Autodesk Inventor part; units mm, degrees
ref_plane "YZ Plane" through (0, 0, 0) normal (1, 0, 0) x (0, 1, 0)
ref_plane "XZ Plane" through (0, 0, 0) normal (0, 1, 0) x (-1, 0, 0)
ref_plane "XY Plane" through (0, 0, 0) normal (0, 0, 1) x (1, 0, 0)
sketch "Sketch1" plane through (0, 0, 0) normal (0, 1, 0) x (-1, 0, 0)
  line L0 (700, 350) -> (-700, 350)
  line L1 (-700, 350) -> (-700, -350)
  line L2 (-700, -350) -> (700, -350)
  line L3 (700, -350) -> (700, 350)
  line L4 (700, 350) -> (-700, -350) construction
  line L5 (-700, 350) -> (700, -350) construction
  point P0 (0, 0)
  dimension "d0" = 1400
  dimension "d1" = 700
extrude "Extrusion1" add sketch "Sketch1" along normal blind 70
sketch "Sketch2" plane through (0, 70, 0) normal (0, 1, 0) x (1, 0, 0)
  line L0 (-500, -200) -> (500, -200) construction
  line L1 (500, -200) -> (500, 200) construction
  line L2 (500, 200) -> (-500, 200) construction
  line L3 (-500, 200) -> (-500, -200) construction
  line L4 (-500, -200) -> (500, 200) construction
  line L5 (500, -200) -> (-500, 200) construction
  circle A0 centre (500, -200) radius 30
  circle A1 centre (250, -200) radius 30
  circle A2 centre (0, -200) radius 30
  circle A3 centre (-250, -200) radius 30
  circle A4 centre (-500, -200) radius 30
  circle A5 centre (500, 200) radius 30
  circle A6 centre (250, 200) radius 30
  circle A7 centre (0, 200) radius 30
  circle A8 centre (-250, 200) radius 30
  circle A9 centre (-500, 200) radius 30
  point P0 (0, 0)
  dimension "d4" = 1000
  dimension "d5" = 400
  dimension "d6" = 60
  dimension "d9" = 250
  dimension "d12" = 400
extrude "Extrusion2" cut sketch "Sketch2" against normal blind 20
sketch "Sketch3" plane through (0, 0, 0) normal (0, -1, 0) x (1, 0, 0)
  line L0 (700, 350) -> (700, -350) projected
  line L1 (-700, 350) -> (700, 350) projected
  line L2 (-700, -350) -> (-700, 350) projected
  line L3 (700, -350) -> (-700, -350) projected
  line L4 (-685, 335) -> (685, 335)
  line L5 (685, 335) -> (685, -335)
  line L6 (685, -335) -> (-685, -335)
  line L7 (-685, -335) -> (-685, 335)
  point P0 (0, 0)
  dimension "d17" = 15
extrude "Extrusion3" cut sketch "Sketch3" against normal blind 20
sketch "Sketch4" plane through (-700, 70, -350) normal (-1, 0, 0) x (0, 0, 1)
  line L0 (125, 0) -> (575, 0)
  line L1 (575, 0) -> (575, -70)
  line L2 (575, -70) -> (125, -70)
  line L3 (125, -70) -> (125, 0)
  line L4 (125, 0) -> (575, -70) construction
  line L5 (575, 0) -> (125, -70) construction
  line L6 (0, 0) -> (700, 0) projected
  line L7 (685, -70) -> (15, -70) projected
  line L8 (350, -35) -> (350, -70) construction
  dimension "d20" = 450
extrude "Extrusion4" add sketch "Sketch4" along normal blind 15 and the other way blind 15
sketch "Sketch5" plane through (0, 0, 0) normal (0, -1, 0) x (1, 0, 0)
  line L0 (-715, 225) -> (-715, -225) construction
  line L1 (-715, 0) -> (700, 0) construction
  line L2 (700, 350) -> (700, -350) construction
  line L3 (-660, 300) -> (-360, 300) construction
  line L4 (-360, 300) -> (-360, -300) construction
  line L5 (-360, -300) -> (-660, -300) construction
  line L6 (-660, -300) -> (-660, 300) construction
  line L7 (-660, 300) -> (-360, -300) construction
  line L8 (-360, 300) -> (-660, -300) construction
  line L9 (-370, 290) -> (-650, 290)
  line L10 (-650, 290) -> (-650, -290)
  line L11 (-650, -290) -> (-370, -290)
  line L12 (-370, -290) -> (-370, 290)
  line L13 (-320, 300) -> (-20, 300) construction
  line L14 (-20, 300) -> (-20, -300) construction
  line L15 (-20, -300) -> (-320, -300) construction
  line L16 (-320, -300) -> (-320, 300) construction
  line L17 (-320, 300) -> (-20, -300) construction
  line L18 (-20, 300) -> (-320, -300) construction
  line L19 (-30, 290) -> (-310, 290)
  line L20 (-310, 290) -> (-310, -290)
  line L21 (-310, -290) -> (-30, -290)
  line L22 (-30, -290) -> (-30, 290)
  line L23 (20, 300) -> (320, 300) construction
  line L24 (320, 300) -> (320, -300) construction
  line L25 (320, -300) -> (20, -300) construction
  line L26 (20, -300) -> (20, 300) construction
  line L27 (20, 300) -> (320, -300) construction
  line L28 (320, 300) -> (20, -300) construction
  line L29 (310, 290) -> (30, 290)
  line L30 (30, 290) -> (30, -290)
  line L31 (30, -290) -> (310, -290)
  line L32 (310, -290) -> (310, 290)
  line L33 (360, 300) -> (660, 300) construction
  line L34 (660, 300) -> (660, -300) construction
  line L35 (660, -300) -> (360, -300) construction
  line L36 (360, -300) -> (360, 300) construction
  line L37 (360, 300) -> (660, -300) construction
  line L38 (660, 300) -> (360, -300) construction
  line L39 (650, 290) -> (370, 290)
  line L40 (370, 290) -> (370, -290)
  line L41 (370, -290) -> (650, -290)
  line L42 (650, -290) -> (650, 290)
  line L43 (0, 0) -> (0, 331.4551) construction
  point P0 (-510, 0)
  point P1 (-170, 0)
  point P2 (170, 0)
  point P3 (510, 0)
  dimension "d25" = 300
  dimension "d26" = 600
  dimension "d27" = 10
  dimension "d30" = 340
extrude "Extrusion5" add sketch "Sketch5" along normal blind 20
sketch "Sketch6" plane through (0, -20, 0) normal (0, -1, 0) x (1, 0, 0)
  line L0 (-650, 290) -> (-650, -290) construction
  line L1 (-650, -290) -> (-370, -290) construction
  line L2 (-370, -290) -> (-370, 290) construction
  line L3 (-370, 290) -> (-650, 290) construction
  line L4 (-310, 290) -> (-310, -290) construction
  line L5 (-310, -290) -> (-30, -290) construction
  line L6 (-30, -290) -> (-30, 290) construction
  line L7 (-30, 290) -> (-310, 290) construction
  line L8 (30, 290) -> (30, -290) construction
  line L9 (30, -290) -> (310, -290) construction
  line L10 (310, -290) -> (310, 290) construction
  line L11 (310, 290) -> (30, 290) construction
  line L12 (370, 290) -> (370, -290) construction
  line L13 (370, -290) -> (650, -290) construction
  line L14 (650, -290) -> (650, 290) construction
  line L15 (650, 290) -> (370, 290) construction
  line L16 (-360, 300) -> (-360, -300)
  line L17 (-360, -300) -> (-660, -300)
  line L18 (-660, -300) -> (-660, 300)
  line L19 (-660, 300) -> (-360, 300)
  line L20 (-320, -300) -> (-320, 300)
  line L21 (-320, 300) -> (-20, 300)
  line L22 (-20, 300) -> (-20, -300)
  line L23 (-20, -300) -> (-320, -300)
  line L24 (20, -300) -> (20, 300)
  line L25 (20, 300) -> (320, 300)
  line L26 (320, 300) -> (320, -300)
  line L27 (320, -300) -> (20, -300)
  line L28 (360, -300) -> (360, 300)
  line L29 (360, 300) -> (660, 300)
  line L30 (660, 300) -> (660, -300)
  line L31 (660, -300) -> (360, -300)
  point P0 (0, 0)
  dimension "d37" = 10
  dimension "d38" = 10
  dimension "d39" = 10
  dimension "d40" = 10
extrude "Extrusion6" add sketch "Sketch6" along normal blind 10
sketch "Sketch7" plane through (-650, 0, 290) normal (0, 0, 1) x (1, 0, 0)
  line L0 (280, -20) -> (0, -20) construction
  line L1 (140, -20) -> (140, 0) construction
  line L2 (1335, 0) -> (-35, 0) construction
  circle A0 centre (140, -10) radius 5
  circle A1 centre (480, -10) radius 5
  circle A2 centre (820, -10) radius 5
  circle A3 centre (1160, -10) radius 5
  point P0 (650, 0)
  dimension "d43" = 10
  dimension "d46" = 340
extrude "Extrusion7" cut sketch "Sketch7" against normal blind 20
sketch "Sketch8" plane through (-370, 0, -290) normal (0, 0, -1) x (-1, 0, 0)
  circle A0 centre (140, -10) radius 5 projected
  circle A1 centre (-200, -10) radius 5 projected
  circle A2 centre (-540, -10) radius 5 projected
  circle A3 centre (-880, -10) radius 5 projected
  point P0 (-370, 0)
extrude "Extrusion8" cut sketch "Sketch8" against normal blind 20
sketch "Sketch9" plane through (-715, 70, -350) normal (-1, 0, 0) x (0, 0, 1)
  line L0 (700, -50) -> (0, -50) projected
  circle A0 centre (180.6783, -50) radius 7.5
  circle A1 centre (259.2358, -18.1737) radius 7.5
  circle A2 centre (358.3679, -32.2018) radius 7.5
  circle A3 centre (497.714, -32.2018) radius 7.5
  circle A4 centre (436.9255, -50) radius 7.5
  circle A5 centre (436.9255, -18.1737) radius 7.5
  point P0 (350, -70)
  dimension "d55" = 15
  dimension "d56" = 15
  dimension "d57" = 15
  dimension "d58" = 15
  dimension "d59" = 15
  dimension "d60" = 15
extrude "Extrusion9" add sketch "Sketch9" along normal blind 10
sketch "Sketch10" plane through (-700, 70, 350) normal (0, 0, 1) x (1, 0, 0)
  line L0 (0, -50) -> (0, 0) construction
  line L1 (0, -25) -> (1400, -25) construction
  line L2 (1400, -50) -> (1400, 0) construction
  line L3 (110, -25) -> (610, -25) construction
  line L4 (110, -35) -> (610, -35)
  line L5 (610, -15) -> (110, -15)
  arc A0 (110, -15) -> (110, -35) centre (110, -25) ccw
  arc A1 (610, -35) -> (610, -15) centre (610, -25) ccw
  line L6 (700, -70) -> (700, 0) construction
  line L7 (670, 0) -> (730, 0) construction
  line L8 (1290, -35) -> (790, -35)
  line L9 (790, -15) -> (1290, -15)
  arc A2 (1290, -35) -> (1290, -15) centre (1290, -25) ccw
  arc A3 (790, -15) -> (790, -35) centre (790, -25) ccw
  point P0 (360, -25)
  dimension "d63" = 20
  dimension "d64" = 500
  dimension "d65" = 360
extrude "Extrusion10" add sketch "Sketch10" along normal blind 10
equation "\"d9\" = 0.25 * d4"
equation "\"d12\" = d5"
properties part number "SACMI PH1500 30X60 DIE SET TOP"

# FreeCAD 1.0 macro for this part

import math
import FreeCAD as App
import Part
import Sketcher
Q = App.Units.Quantity

doc = App.newDocument("Part")
params = doc.addObject("Spreadsheet::Sheet", "Params")
for row, (alias, value) in enumerate([
    ("sketch1_width", "1400 mm"),
    ("sketch1_height", "700 mm"),
    ("pad1_length", "70 mm"),
    ("sketch2_diameter", "60 mm"),
    ("pocket1_length", "20 mm"),
    ("sketch3_width", "1400 mm"),
    ("sketch3_height", "700 mm"),
    ("pocket2_length", "20 mm"),
    ("sketch4_height", "450 mm"),
    ("sketch4_width", "70 mm"),
    ("pad2_length", "15 mm"),
    ("pad2_length2", "15 mm"),
    ("sketch5_width", "280 mm"),
    ("sketch5_height", "580 mm"),
    ("pad3_length", "20 mm"),
    ("sketch6_width", "300 mm"),
    ("sketch6_height", "600 mm"),
    ("pad4_length", "10 mm"),
    ("sketch7_diameter", "10 mm"),
    ("pocket3_length", "20 mm"),
    ("sketch8_diameter", "10 mm"),
    ("pocket4_length", "20 mm"),
    ("sketch9_diameter", "15 mm"),
    ("pad5_length", "10 mm"),
    ("sketch10_radius", "10 mm"),
    ("sketch10_width", "500 mm"),
    ("pad6_length", "10 mm"),
], start=1):
    params.set(f"A{row}", alias)
    params.set(f"B{row}", "=" + value)
    params.setAlias(f"B{row}", alias)

body = doc.addObject("PartDesign::Body", "Body")

sketch1 = body.newObject("Sketcher::SketchObject", "Sketch")
sketch1.AttachmentSupport = (doc.getObject("XZ_Plane"), [""])
sketch1.MapMode = "FlatFace"
sketch1.addGeometry([
    Part.LineSegment(App.Vector(-700, -350, 0), App.Vector(-700, 350, 0)),
    Part.LineSegment(App.Vector(-700, 350, 0), App.Vector(700, 350, 0)),
    Part.LineSegment(App.Vector(700, 350, 0), App.Vector(700, -350, 0)),
    Part.LineSegment(App.Vector(700, -350, 0), App.Vector(-700, -350, 0)),
], False)
sketch1.addConstraint([
    Sketcher.Constraint("Coincident", 0, 2, 1, 1),
    Sketcher.Constraint("Coincident", 1, 2, 2, 1),
    Sketcher.Constraint("Coincident", 2, 2, 3, 1),
    Sketcher.Constraint("Coincident", 3, 2, 0, 1),
    Sketcher.Constraint("Vertical", 0),
    Sketcher.Constraint("Horizontal", 1),
    Sketcher.Constraint("Vertical", 2),
    Sketcher.Constraint("Horizontal", 3),
    Sketcher.Constraint("Symmetric", 0, 2, 2, 2, -1, 1),
    Sketcher.Constraint("DistanceX", 1, 1, 1, 2, Q("1400 mm")),
    Sketcher.Constraint("DistanceY", 0, 1, 0, 2, Q("700 mm")),
])
sketch1.setExpression("Constraints[9]", "Params.sketch1_width")
sketch1.setExpression("Constraints[10]", "Params.sketch1_height")
pad1 = body.newObject("PartDesign::Pad", "Pad")
pad1.Profile = sketch1
pad1.setExpression("Length", "Params.pad1_length")
pad1.Reversed = True

sketch2 = body.newObject("Sketcher::SketchObject", "Sketch001")
sketch2.AttachmentSupport = (doc.getObject("XZ_Plane"), [""])
sketch2.MapMode = "FlatFace"
sketch2.AttachmentOffset = App.Placement(App.Vector(0, 0, -70), App.Rotation())
sketch2.addGeometry([
    Part.Circle(App.Vector(500, 200, 0), App.Vector(0, 0, 1), 30),
    Part.Circle(App.Vector(250, 200, 0), App.Vector(0, 0, 1), 30),
    Part.Circle(App.Vector(0, 200, 0), App.Vector(0, 0, 1), 30),
    Part.Circle(App.Vector(-250, 200, 0), App.Vector(0, 0, 1), 30),
    Part.Circle(App.Vector(-500, 200, 0), App.Vector(0, 0, 1), 30),
    Part.Circle(App.Vector(500, -200, 0), App.Vector(0, 0, 1), 30),
    Part.Circle(App.Vector(250, -200, 0), App.Vector(0, 0, 1), 30),
    Part.Circle(App.Vector(0, -200, 0), App.Vector(0, 0, 1), 30),
    Part.Circle(App.Vector(-250, -200, 0), App.Vector(0, 0, 1), 30),
    Part.Circle(App.Vector(-500, -200, 0), App.Vector(0, 0, 1), 30),
], False)
sketch2.addConstraint([
    Sketcher.Constraint("Equal", 0, 1),
    Sketcher.Constraint("Equal", 1, 2),
    Sketcher.Constraint("Equal", 2, 3),
    Sketcher.Constraint("Equal", 3, 4),
    Sketcher.Constraint("Equal", 4, 5),
    Sketcher.Constraint("Equal", 5, 6),
    Sketcher.Constraint("Equal", 6, 7),
    Sketcher.Constraint("Equal", 7, 8),
    Sketcher.Constraint("Equal", 8, 9),
    Sketcher.Constraint("Symmetric", 4, 3, 5, 3, -1, 1),
    Sketcher.Constraint("Symmetric", 3, 3, 6, 3, -1, 1),
    Sketcher.Constraint("Symmetric", 2, 3, 7, 3, -1, 1),
    Sketcher.Constraint("Symmetric", 1, 3, 8, 3, -1, 1),
    Sketcher.Constraint("Symmetric", 0, 3, 9, 3, -1, 1),
    Sketcher.Constraint("Symmetric", 1, 3, 3, 3, -2),
    Sketcher.Constraint("Symmetric", 0, 3, 4, 3, -2),
    Sketcher.Constraint("PointOnObject", 2, 3, -2),
    Sketcher.Constraint("Horizontal", 0, 3, 1, 3),
    Sketcher.Constraint("Horizontal", 1, 3, 2, 3),
    Sketcher.Constraint("Diameter", 0, Q("60 mm")),
    Sketcher.Constraint("DistanceX", -1, 1, 1, 3, Q("250 mm")),
    Sketcher.Constraint("DistanceX", 1, 3, 0, 3, Q("250 mm")),
    Sketcher.Constraint("DistanceY", 5, 3, 0, 3, Q("400 mm")),
])
sketch2.setExpression("Constraints[19]", "Params.sketch2_diameter")
pocket1 = body.newObject("PartDesign::Pocket", "Pocket")
pocket1.Profile = sketch2
pocket1.setExpression("Length", "Params.pocket1_length")
pocket1.Reversed = True

sketch3 = body.newObject("Sketcher::SketchObject", "Sketch002")
sketch3.AttachmentSupport = (doc.getObject("XZ_Plane"), [""])
sketch3.MapMode = "FlatFace"
sketch3.addGeometry([
    Part.LineSegment(App.Vector(700, -350, 0), App.Vector(700, 350, 0)),
    Part.LineSegment(App.Vector(700, 350, 0), App.Vector(-700, 350, 0)),
    Part.LineSegment(App.Vector(-700, 350, 0), App.Vector(-700, -350, 0)),
    Part.LineSegment(App.Vector(-700, -350, 0), App.Vector(700, -350, 0)),
    Part.LineSegment(App.Vector(-685, -335, 0), App.Vector(-685, 335, 0)),
    Part.LineSegment(App.Vector(-685, 335, 0), App.Vector(685, 335, 0)),
    Part.LineSegment(App.Vector(685, 335, 0), App.Vector(685, -335, 0)),
    Part.LineSegment(App.Vector(685, -335, 0), App.Vector(-685, -335, 0)),
], False)
sketch3.addConstraint([
    Sketcher.Constraint("Coincident", 0, 2, 1, 1),
    Sketcher.Constraint("Coincident", 1, 2, 2, 1),
    Sketcher.Constraint("Coincident", 2, 2, 3, 1),
    Sketcher.Constraint("Coincident", 3, 2, 0, 1),
    Sketcher.Constraint("Coincident", 4, 2, 5, 1),
    Sketcher.Constraint("Coincident", 5, 2, 6, 1),
    Sketcher.Constraint("Coincident", 6, 2, 7, 1),
    Sketcher.Constraint("Coincident", 7, 2, 4, 1),
    Sketcher.Constraint("Vertical", 0),
    Sketcher.Constraint("Horizontal", 1),
    Sketcher.Constraint("Vertical", 2),
    Sketcher.Constraint("Horizontal", 3),
    Sketcher.Constraint("Vertical", 4),
    Sketcher.Constraint("Horizontal", 5),
    Sketcher.Constraint("Vertical", 6),
    Sketcher.Constraint("Horizontal", 7),
    Sketcher.Constraint("Symmetric", 0, 2, 2, 2, -1, 1),
    Sketcher.Constraint("Symmetric", 4, 2, 6, 2, -1, 1),
    Sketcher.Constraint("DistanceX", 1, 2, 4, 2, Q("15 mm")),
    Sketcher.Constraint("DistanceY", 4, 2, 1, 2, Q("15 mm")),
    Sketcher.Constraint("DistanceX", 1, 2, 1, 1, Q("1400 mm")),
    Sketcher.Constraint("DistanceY", 0, 1, 0, 2, Q("700 mm")),
])
sketch3.setExpression("Constraints[20]", "Params.sketch3_width")
sketch3.setExpression("Constraints[21]", "Params.sketch3_height")
pocket2 = body.newObject("PartDesign::Pocket", "Pocket001")
pocket2.Profile = sketch3
pocket2.setExpression("Length", "Params.pocket2_length")

sketch4 = body.newObject("Sketcher::SketchObject", "Sketch003")
sketch4.AttachmentSupport = (doc.getObject("YZ_Plane"), [""])
sketch4.MapMode = "FlatFace"
sketch4.AttachmentOffset = App.Placement(App.Vector(0, 0, -700), App.Rotation())
sketch4.addGeometry([
    Part.LineSegment(App.Vector(70, 225, 0), App.Vector(70, -225, 0)),
    Part.LineSegment(App.Vector(70, -225, 0), App.Vector(0, -225, 0)),
    Part.LineSegment(App.Vector(0, -225, 0), App.Vector(0, 225, 0)),
    Part.LineSegment(App.Vector(0, 225, 0), App.Vector(70, 225, 0)),
], False)
sketch4.addConstraint([
    Sketcher.Constraint("Coincident", 0, 2, 1, 1),
    Sketcher.Constraint("Coincident", 1, 2, 2, 1),
    Sketcher.Constraint("Coincident", 2, 2, 3, 1),
    Sketcher.Constraint("Coincident", 3, 2, 0, 1),
    Sketcher.Constraint("Vertical", 0),
    Sketcher.Constraint("Horizontal", 1),
    Sketcher.Constraint("Vertical", 2),
    Sketcher.Constraint("Horizontal", 3),
    Sketcher.Constraint("Symmetric", 1, 2, 2, 2, -1, 1),
    Sketcher.Constraint("DistanceY", 0, 2, 0, 1, Q("450 mm")),
    Sketcher.Constraint("DistanceX", 1, 2, 1, 1, Q("70 mm")),
])
sketch4.setExpression("Constraints[9]", "Params.sketch4_height")
sketch4.setExpression("Constraints[10]", "Params.sketch4_width")
pad2 = body.newObject("PartDesign::Pad", "Pad001")
pad2.Profile = sketch4
pad2.Type = "TwoLengths"
pad2.setExpression("Length", "Params.pad2_length")
pad2.setExpression("Length2", "Params.pad2_length2")
pad2.Reversed = True

sketch5 = body.newObject("Sketcher::SketchObject", "Sketch004")
sketch5.AttachmentSupport = (doc.getObject("XZ_Plane"), [""])
sketch5.MapMode = "FlatFace"
sketch5.addGeometry([
    Part.LineSegment(App.Vector(-370, -290, 0), App.Vector(-370, 290, 0)),
    Part.LineSegment(App.Vector(-370, 290, 0), App.Vector(-650, 290, 0)),
    Part.LineSegment(App.Vector(-650, 290, 0), App.Vector(-650, -290, 0)),
    Part.LineSegment(App.Vector(-650, -290, 0), App.Vector(-370, -290, 0)),
    Part.LineSegment(App.Vector(-30, -290, 0), App.Vector(-30, 290, 0)),
    Part.LineSegment(App.Vector(-30, 290, 0), App.Vector(-310, 290, 0)),
    Part.LineSegment(App.Vector(-310, 290, 0), App.Vector(-310, -290, 0)),
    Part.LineSegment(App.Vector(-310, -290, 0), App.Vector(-30, -290, 0)),
    Part.LineSegment(App.Vector(310, -290, 0), App.Vector(310, 290, 0)),
    Part.LineSegment(App.Vector(310, 290, 0), App.Vector(30, 290, 0)),
    Part.LineSegment(App.Vector(30, 290, 0), App.Vector(30, -290, 0)),
    Part.LineSegment(App.Vector(30, -290, 0), App.Vector(310, -290, 0)),
    Part.LineSegment(App.Vector(650, -290, 0), App.Vector(650, 290, 0)),
    Part.LineSegment(App.Vector(650, 290, 0), App.Vector(370, 290, 0)),
    Part.LineSegment(App.Vector(370, 290, 0), App.Vector(370, -290, 0)),
    Part.LineSegment(App.Vector(370, -290, 0), App.Vector(650, -290, 0)),
], False)
sketch5.addConstraint([
    Sketcher.Constraint("Coincident", 0, 2, 1, 1),
    Sketcher.Constraint("Coincident", 1, 2, 2, 1),
    Sketcher.Constraint("Coincident", 2, 2, 3, 1),
    Sketcher.Constraint("Coincident", 3, 2, 0, 1),
    Sketcher.Constraint("Coincident", 4, 2, 5, 1),
    Sketcher.Constraint("Coincident", 5, 2, 6, 1),
    Sketcher.Constraint("Coincident", 6, 2, 7, 1),
    Sketcher.Constraint("Coincident", 7, 2, 4, 1),
    Sketcher.Constraint("Coincident", 8, 2, 9, 1),
    Sketcher.Constraint("Coincident", 9, 2, 10, 1),
    Sketcher.Constraint("Coincident", 10, 2, 11, 1),
    Sketcher.Constraint("Coincident", 11, 2, 8, 1),
    Sketcher.Constraint("Coincident", 12, 2, 13, 1),
    Sketcher.Constraint("Coincident", 13, 2, 14, 1),
    Sketcher.Constraint("Coincident", 14, 2, 15, 1),
    Sketcher.Constraint("Coincident", 15, 2, 12, 1),
    Sketcher.Constraint("Vertical", 0),
    Sketcher.Constraint("Horizontal", 1),
    Sketcher.Constraint("Vertical", 2),
    Sketcher.Constraint("Horizontal", 3),
    Sketcher.Constraint("Vertical", 4),
    Sketcher.Constraint("Horizontal", 5),
    Sketcher.Constraint("Vertical", 6),
    Sketcher.Constraint("Horizontal", 7),
    Sketcher.Constraint("Vertical", 8),
    Sketcher.Constraint("Horizontal", 9),
    Sketcher.Constraint("Vertical", 10),
    Sketcher.Constraint("Horizontal", 11),
    Sketcher.Constraint("Vertical", 12),
    Sketcher.Constraint("Horizontal", 13),
    Sketcher.Constraint("Vertical", 14),
    Sketcher.Constraint("Horizontal", 15),
    Sketcher.Constraint("Symmetric", 6, 2, 8, 2, -1, 1),
    Sketcher.Constraint("Symmetric", 4, 2, 10, 2, -1, 1),
    Sketcher.Constraint("Symmetric", 2, 2, 12, 2, -1, 1),
    Sketcher.Constraint("Symmetric", 0, 2, 14, 2, -1, 1),
    Sketcher.Constraint("Horizontal", 1, 2, 4, 2),
    Sketcher.Constraint("Horizontal", 3, 2, 6, 2),
    Sketcher.Constraint("Horizontal", 5, 2, 8, 2),
    Sketcher.Constraint("Equal", 3, 5),
    Sketcher.Constraint("DistanceX", 0, 2, 4, 2, Q("340 mm")),
    Sketcher.Constraint("DistanceX", 4, 2, 8, 2, Q("340 mm")),
    Sketcher.Constraint("DistanceX", 1, 2, 1, 1, Q("280 mm")),
    Sketcher.Constraint("DistanceY", 0, 1, 0, 2, Q("580 mm")),
])
sketch5.setExpression("Constraints[42]", "Params.sketch5_width")
sketch5.setExpression("Constraints[43]", "Params.sketch5_height")
pad3 = body.newObject("PartDesign::Pad", "Pad002")
pad3.Profile = sketch5
pad3.setExpression("Length", "Params.pad3_length")

sketch6 = body.newObject("Sketcher::SketchObject", "Sketch005")
sketch6.AttachmentSupport = (doc.getObject("XZ_Plane"), [""])
sketch6.MapMode = "FlatFace"
sketch6.AttachmentOffset = App.Placement(App.Vector(0, 0, 20), App.Rotation())
sketch6.addGeometry([
    Part.LineSegment(App.Vector(-360, -300, 0), App.Vector(-360, 300, 0)),
    Part.LineSegment(App.Vector(-360, 300, 0), App.Vector(-660, 300, 0)),
    Part.LineSegment(App.Vector(-660, 300, 0), App.Vector(-660, -300, 0)),
    Part.LineSegment(App.Vector(-660, -300, 0), App.Vector(-360, -300, 0)),
    Part.LineSegment(App.Vector(-320, 300, 0), App.Vector(-320, -300, 0)),
    Part.LineSegment(App.Vector(-320, -300, 0), App.Vector(-20, -300, 0)),
    Part.LineSegment(App.Vector(-20, -300, 0), App.Vector(-20, 300, 0)),
    Part.LineSegment(App.Vector(-20, 300, 0), App.Vector(-320, 300, 0)),
    Part.LineSegment(App.Vector(20, 300, 0), App.Vector(20, -300, 0)),
    Part.LineSegment(App.Vector(20, -300, 0), App.Vector(320, -300, 0)),
    Part.LineSegment(App.Vector(320, -300, 0), App.Vector(320, 300, 0)),
    Part.LineSegment(App.Vector(320, 300, 0), App.Vector(20, 300, 0)),
    Part.LineSegment(App.Vector(360, 300, 0), App.Vector(360, -300, 0)),
    Part.LineSegment(App.Vector(360, -300, 0), App.Vector(660, -300, 0)),
    Part.LineSegment(App.Vector(660, -300, 0), App.Vector(660, 300, 0)),
    Part.LineSegment(App.Vector(660, 300, 0), App.Vector(360, 300, 0)),
], False)
sketch6.addConstraint([
    Sketcher.Constraint("Coincident", 0, 2, 1, 1),
    Sketcher.Constraint("Coincident", 1, 2, 2, 1),
    Sketcher.Constraint("Coincident", 2, 2, 3, 1),
    Sketcher.Constraint("Coincident", 3, 2, 0, 1),
    Sketcher.Constraint("Coincident", 4, 2, 5, 1),
    Sketcher.Constraint("Coincident", 5, 2, 6, 1),
    Sketcher.Constraint("Coincident", 6, 2, 7, 1),
    Sketcher.Constraint("Coincident", 7, 2, 4, 1),
    Sketcher.Constraint("Coincident", 8, 2, 9, 1),
    Sketcher.Constraint("Coincident", 9, 2, 10, 1),
    Sketcher.Constraint("Coincident", 10, 2, 11, 1),
    Sketcher.Constraint("Coincident", 11, 2, 8, 1),
    Sketcher.Constraint("Coincident", 12, 2, 13, 1),
    Sketcher.Constraint("Coincident", 13, 2, 14, 1),
    Sketcher.Constraint("Coincident", 14, 2, 15, 1),
    Sketcher.Constraint("Coincident", 15, 2, 12, 1),
    Sketcher.Constraint("Vertical", 0),
    Sketcher.Constraint("Horizontal", 1),
    Sketcher.Constraint("Vertical", 2),
    Sketcher.Constraint("Horizontal", 3),
    Sketcher.Constraint("Vertical", 4),
    Sketcher.Constraint("Horizontal", 5),
    Sketcher.Constraint("Vertical", 6),
    Sketcher.Constraint("Horizontal", 7),
    Sketcher.Constraint("Vertical", 8),
    Sketcher.Constraint("Horizontal", 9),
    Sketcher.Constraint("Vertical", 10),
    Sketcher.Constraint("Horizontal", 11),
    Sketcher.Constraint("Vertical", 12),
    Sketcher.Constraint("Horizontal", 13),
    Sketcher.Constraint("Vertical", 14),
    Sketcher.Constraint("Horizontal", 15),
    Sketcher.Constraint("Symmetric", 6, 2, 8, 2, -1, 1),
    Sketcher.Constraint("Symmetric", 4, 2, 10, 2, -1, 1),
    Sketcher.Constraint("Symmetric", 0, 2, 12, 2, -1, 1),
    Sketcher.Constraint("Symmetric", 2, 2, 14, 2, -1, 1),
    Sketcher.Constraint("Horizontal", 3, 2, 4, 2),
    Sketcher.Constraint("Horizontal", 1, 2, 6, 2),
    Sketcher.Constraint("Horizontal", 5, 2, 8, 2),
    Sketcher.Constraint("Equal", 3, 5),
    Sketcher.Constraint("DistanceX", 1, 2, 1, 1, Q("300 mm")),
    Sketcher.Constraint("DistanceY", 0, 1, 0, 2, Q("600 mm")),
    Sketcher.Constraint("DistanceX", 0, 2, -1, 1, Q("360 mm")),
    Sketcher.Constraint("DistanceX", 4, 2, -1, 1, Q("320 mm")),
])
sketch6.setExpression("Constraints[40]", "Params.sketch6_width")
sketch6.setExpression("Constraints[41]", "Params.sketch6_height")
pad4 = body.newObject("PartDesign::Pad", "Pad003")
pad4.Profile = sketch6
pad4.setExpression("Length", "Params.pad4_length")

sketch7 = body.newObject("Sketcher::SketchObject", "Sketch006")
sketch7.AttachmentSupport = (doc.getObject("XY_Plane"), [""])
sketch7.MapMode = "FlatFace"
sketch7.AttachmentOffset = App.Placement(App.Vector(0, 0, 290), App.Rotation())
sketch7.addGeometry([
    Part.Circle(App.Vector(-510, -10, 0), App.Vector(0, 0, 1), 5),
    Part.Circle(App.Vector(-170, -10, 0), App.Vector(0, 0, 1), 5),
    Part.Circle(App.Vector(170, -10, 0), App.Vector(0, 0, 1), 5),
    Part.Circle(App.Vector(510, -10, 0), App.Vector(0, 0, 1), 5),
], False)
sketch7.addConstraint([
    Sketcher.Constraint("Equal", 0, 1),
    Sketcher.Constraint("Equal", 1, 2),
    Sketcher.Constraint("Equal", 2, 3),
    Sketcher.Constraint("Symmetric", 1, 3, 2, 3, -2),
    Sketcher.Constraint("Symmetric", 0, 3, 3, 3, -2),
    Sketcher.Constraint("Horizontal", 0, 3, 1, 3),
    Sketcher.Constraint("Diameter", 0, Q("10 mm")),
    Sketcher.Constraint("DistanceY", 0, 3, -1, 1, Q("10 mm")),
    Sketcher.Constraint("DistanceX", 0, 3, 1, 3, Q("340 mm")),
    Sketcher.Constraint("DistanceX", 1, 3, 2, 3, Q("340 mm")),
])
sketch7.setExpression("Constraints[6]", "Params.sketch7_diameter")
pocket3 = body.newObject("PartDesign::Pocket", "Pocket002")
pocket3.Profile = sketch7
pocket3.setExpression("Length", "Params.pocket3_length")

sketch8 = body.newObject("Sketcher::SketchObject", "Sketch007")
sketch8.AttachmentSupport = (doc.getObject("XY_Plane"), [""])
sketch8.MapMode = "FlatFace"
sketch8.AttachmentOffset = App.Placement(App.Vector(0, 0, -290), App.Rotation())
sketch8.addGeometry([
    Part.Circle(App.Vector(-510, -10, 0), App.Vector(0, 0, 1), 5),
    Part.Circle(App.Vector(-170, -10, 0), App.Vector(0, 0, 1), 5),
    Part.Circle(App.Vector(170, -10, 0), App.Vector(0, 0, 1), 5),
    Part.Circle(App.Vector(510, -10, 0), App.Vector(0, 0, 1), 5),
], False)
sketch8.addConstraint([
    Sketcher.Constraint("Equal", 0, 1),
    Sketcher.Constraint("Equal", 1, 2),
    Sketcher.Constraint("Equal", 2, 3),
    Sketcher.Constraint("Symmetric", 1, 3, 2, 3, -2),
    Sketcher.Constraint("Symmetric", 0, 3, 3, 3, -2),
    Sketcher.Constraint("Horizontal", 0, 3, 1, 3),
    Sketcher.Constraint("Diameter", 0, Q("10 mm")),
    Sketcher.Constraint("DistanceX", 0, 3, -1, 1, Q("510 mm")),
    Sketcher.Constraint("DistanceY", 0, 3, -1, 1, Q("10 mm")),
    Sketcher.Constraint("DistanceX", 1, 3, -1, 1, Q("170 mm")),
])
sketch8.setExpression("Constraints[6]", "Params.sketch8_diameter")
pocket4 = body.newObject("PartDesign::Pocket", "Pocket003")
pocket4.Profile = sketch8
pocket4.setExpression("Length", "Params.pocket4_length")
pocket4.Reversed = True

sketch9 = body.newObject("Sketcher::SketchObject", "Sketch008")
sketch9.AttachmentSupport = (doc.getObject("YZ_Plane"), [""])
sketch9.MapMode = "FlatFace"
sketch9.AttachmentOffset = App.Placement(App.Vector(0, 0, -715), App.Rotation())
sketch9.addGeometry([
    Part.Circle(App.Vector(20, 86.9255, 0), App.Vector(0, 0, 1), 7.5),
    Part.Circle(App.Vector(20, -169.3217, 0), App.Vector(0, 0, 1), 7.5),
    Part.Circle(App.Vector(51.8263, -90.7642, 0), App.Vector(0, 0, 1), 7.5),
    Part.Circle(App.Vector(37.7982, 8.3679, 0), App.Vector(0, 0, 1), 7.5),
    Part.Circle(App.Vector(37.7982, 147.714, 0), App.Vector(0, 0, 1), 7.5),
    Part.Circle(App.Vector(51.8263, 86.9255, 0), App.Vector(0, 0, 1), 7.5),
], False)
sketch9.addConstraint([
    Sketcher.Constraint("Equal", 0, 1),
    Sketcher.Constraint("Equal", 1, 2),
    Sketcher.Constraint("Equal", 2, 3),
    Sketcher.Constraint("Equal", 3, 4),
    Sketcher.Constraint("Equal", 4, 5),
    Sketcher.Constraint("Horizontal", 0, 3, 5, 3),
    Sketcher.Constraint("Vertical", 0, 3, 1, 3),
    Sketcher.Constraint("Vertical", 3, 3, 4, 3),
    Sketcher.Constraint("Vertical", 2, 3, 5, 3),
    Sketcher.Constraint("Diameter", 0, Q("15 mm")),
    Sketcher.Constraint("DistanceX", -1, 1, 0, 3, Q("20 mm")),
    Sketcher.Constraint("DistanceY", -1, 1, 3, 3, Q("8.368 mm")),
    Sketcher.Constraint("DistanceY", -1, 1, 4, 3, Q("147.714 mm")),
    Sketcher.Constraint("DistanceX", 3, 3, 2, 3, Q("14.028 mm")),
    Sketcher.Constraint("DistanceY", 2, 3, 3, 3, Q("99.132 mm")),
    Sketcher.Constraint("DistanceY", -1, 1, 0, 3, Q("86.9255 mm")),
    Sketcher.Constraint("DistanceY", 1, 3, -1, 1, Q("169.3217 mm")),
    Sketcher.Constraint("DistanceX", -1, 1, 2, 3, Q("51.8263 mm")),
])
sketch9.setExpression("Constraints[9]", "Params.sketch9_diameter")
pad5 = body.newObject("PartDesign::Pad", "Pad004")
pad5.Profile = sketch9
pad5.setExpression("Length", "Params.pad5_length")
pad5.Reversed = True

sketch10 = body.newObject("Sketcher::SketchObject", "Sketch009")
sketch10.AttachmentSupport = (doc.getObject("XY_Plane"), [""])
sketch10.MapMode = "FlatFace"
sketch10.AttachmentOffset = App.Placement(App.Vector(0, 0, 350), App.Rotation())
sketch10.addGeometry([
    Part.ArcOfCircle(Part.Circle(App.Vector(-590, 45, 0), App.Vector(0, 0, 1), 10), math.radians(90), math.radians(270)),
    Part.LineSegment(App.Vector(-590, 35, 0), App.Vector(-90, 35, 0)),
    Part.ArcOfCircle(Part.Circle(App.Vector(-90, 45, 0), App.Vector(0, 0, 1), 10), math.radians(-90), math.radians(90)),
    Part.LineSegment(App.Vector(-90, 55, 0), App.Vector(-590, 55, 0)),
    Part.LineSegment(App.Vector(90, 35, 0), App.Vector(590, 35, 0)),
    Part.ArcOfCircle(Part.Circle(App.Vector(590, 45, 0), App.Vector(0, 0, 1), 10), math.radians(-90), math.radians(90)),
    Part.LineSegment(App.Vector(590, 55, 0), App.Vector(90, 55, 0)),
    Part.ArcOfCircle(Part.Circle(App.Vector(90, 45, 0), App.Vector(0, 0, 1), 10), math.radians(90), math.radians(270)),
], False)
sketch10.addConstraint([
    Sketcher.Constraint("Tangent", 0, 2, 1, 1),
    Sketcher.Constraint("Tangent", 1, 2, 2, 1),
    Sketcher.Constraint("Tangent", 2, 2, 3, 1),
    Sketcher.Constraint("Tangent", 3, 2, 0, 1),
    Sketcher.Constraint("Tangent", 4, 2, 5, 1),
    Sketcher.Constraint("Tangent", 5, 2, 6, 1),
    Sketcher.Constraint("Tangent", 6, 2, 7, 1),
    Sketcher.Constraint("Tangent", 7, 2, 4, 1),
    Sketcher.Constraint("Horizontal", 1),
    Sketcher.Constraint("Horizontal", 3),
    Sketcher.Constraint("Horizontal", 4),
    Sketcher.Constraint("Horizontal", 6),
    Sketcher.Constraint("Equal", 2, 5),
    Sketcher.Constraint("Symmetric", 0, 3, 5, 3, -2),
    Sketcher.Constraint("Equal", 3, 4),
    Sketcher.Constraint("Radius", 0, Q("10 mm")),
    Sketcher.Constraint("DistanceX", 1, 1, 1, 2, Q("500 mm")),
    Sketcher.Constraint("DistanceX", 0, 3, -1, 1, Q("590 mm")),
    Sketcher.Constraint("DistanceY", -1, 1, 0, 3, Q("45 mm")),
])
sketch10.setExpression("Constraints[15]", "Params.sketch10_radius")
sketch10.setExpression("Constraints[16]", "Params.sketch10_width")
pad6 = body.newObject("PartDesign::Pad", "Pad005")
pad6.Profile = sketch10
pad6.setExpression("Length", "Params.pad6_length")

doc.recompute()
